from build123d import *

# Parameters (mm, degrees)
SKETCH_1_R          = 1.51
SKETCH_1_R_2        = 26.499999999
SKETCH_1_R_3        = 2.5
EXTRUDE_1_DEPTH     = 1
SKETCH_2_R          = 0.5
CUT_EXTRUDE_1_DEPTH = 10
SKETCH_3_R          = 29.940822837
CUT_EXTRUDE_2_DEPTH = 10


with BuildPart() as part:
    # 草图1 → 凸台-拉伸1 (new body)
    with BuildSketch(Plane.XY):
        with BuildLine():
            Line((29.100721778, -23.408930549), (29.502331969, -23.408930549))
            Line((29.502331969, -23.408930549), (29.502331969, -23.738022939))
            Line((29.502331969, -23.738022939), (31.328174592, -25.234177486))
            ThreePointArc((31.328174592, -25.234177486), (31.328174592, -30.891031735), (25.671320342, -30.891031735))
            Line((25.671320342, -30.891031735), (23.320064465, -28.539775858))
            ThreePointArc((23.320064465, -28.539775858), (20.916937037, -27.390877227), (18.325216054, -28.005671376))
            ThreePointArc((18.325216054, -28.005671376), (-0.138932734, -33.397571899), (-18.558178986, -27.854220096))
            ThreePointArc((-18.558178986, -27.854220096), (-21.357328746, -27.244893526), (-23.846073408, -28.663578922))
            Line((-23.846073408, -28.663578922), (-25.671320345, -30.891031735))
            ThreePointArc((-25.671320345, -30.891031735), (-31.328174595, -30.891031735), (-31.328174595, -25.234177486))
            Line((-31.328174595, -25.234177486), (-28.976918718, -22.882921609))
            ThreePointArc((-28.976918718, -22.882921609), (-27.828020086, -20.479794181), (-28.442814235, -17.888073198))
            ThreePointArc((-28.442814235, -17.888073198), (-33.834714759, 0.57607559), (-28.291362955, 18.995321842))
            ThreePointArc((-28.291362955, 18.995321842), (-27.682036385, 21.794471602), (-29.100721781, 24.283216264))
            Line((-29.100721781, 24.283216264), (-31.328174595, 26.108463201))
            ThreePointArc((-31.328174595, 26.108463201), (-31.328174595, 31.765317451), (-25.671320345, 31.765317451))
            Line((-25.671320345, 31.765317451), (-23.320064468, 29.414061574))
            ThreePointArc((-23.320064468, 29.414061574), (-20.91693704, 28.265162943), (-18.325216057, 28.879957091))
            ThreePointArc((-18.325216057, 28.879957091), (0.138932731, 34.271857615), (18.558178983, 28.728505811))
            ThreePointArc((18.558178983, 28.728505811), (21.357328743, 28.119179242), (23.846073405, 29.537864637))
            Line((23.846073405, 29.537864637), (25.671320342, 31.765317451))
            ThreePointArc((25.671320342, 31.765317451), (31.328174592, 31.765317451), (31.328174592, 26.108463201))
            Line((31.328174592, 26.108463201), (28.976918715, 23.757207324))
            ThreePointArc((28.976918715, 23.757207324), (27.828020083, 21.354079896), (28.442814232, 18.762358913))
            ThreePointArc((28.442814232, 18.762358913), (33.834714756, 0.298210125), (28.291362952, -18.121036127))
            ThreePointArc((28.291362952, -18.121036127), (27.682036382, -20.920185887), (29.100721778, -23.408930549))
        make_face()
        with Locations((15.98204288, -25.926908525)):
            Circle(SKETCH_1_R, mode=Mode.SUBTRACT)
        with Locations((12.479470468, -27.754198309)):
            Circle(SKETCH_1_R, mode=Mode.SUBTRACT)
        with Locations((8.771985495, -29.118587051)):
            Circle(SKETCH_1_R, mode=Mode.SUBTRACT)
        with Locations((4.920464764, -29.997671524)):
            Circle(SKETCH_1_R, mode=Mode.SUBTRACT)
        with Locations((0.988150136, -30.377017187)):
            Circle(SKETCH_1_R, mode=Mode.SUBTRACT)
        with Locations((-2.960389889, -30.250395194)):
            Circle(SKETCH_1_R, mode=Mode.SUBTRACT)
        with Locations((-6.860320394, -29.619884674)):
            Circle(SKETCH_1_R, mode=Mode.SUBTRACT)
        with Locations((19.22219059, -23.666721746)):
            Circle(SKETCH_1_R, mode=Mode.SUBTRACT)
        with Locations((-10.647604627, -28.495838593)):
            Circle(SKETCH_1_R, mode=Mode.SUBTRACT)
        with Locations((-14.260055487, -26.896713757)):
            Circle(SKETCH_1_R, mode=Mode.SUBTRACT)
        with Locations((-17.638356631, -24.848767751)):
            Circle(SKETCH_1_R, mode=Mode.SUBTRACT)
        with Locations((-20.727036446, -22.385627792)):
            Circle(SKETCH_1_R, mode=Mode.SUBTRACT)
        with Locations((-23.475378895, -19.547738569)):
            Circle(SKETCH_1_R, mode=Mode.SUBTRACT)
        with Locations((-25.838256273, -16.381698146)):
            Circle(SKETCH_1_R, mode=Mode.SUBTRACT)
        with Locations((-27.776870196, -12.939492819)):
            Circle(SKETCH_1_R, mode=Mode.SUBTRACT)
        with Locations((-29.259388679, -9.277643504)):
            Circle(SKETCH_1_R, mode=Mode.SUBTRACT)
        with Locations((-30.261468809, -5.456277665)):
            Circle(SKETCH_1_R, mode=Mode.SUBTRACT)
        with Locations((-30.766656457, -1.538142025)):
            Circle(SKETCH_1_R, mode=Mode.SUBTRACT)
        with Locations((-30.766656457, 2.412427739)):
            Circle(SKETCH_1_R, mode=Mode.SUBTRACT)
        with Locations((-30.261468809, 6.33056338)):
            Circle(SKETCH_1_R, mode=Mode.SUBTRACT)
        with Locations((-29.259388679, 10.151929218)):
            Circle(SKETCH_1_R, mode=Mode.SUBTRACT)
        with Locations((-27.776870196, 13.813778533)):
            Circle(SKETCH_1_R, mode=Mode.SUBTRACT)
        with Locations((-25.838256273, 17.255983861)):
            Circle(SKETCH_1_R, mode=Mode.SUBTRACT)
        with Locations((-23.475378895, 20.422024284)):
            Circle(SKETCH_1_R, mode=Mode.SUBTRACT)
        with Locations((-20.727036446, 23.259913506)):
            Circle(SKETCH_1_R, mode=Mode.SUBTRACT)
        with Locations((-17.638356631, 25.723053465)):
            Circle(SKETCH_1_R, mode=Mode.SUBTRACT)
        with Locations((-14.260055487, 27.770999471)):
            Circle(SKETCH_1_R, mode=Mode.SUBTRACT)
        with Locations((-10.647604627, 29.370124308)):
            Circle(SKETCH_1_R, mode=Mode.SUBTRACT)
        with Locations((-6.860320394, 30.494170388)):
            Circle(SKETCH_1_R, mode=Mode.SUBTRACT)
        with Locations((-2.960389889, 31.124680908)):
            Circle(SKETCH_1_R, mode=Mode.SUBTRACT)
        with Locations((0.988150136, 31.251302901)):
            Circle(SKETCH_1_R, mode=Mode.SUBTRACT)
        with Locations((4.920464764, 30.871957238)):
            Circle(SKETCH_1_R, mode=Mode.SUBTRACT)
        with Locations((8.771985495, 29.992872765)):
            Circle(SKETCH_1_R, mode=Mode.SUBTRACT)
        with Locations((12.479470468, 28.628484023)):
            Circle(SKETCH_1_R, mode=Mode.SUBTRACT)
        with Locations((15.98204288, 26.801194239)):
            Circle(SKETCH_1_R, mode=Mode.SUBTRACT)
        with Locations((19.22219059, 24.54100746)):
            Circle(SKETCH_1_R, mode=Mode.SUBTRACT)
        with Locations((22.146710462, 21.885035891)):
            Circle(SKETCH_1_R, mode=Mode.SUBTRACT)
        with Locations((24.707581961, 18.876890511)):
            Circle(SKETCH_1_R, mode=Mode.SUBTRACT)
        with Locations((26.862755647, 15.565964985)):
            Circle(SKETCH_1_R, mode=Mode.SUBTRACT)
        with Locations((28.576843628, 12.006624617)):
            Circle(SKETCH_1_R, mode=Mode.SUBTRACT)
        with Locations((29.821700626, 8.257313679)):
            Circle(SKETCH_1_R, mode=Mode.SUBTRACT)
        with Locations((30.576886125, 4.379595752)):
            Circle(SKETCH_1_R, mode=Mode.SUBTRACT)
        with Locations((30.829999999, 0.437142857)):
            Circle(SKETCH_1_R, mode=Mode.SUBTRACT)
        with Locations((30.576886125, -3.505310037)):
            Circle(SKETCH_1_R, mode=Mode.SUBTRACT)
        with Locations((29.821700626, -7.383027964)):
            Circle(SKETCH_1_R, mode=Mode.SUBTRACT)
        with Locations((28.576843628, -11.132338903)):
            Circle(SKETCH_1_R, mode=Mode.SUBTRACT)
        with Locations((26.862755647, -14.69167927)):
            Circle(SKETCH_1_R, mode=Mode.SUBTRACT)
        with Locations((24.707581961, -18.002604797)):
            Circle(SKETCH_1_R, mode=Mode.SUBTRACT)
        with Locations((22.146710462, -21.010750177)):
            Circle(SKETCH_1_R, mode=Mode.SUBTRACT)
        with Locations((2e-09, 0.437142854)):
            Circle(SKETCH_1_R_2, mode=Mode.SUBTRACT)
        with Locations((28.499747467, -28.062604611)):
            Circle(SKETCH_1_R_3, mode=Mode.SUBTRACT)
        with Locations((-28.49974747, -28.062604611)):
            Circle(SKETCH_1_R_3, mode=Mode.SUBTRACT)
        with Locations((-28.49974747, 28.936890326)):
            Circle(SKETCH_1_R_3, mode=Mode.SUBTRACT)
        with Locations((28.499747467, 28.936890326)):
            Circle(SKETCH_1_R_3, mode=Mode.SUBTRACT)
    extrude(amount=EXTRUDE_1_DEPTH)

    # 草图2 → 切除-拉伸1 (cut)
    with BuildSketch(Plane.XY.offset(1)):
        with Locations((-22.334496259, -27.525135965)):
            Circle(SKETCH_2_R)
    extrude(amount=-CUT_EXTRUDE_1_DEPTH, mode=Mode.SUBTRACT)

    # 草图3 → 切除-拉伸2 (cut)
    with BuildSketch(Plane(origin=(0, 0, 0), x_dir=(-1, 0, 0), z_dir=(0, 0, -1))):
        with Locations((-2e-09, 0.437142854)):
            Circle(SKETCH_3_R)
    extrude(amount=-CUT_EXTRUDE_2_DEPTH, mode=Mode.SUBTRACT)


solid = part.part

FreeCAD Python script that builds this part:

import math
import FreeCAD as App
import Part
import Sketcher
Q = App.Units.Quantity

doc = App.newDocument("Part")
body = doc.addObject("PartDesign::Body", "Body")

# Sketch on XY plane
sketch1 = body.newObject("Sketcher::SketchObject", "Sketch")
sketch1.AttachmentSupport = (doc.getObject("XY_Plane"), [""])
sketch1.MapMode = "FlatFace"
sketch1.addGeometry(Part.LineSegment(App.Vector(29.5, -23.41, 0), App.Vector(29.1, -23.41, 0)), False)
sketch1.addGeometry(Part.ArcOfCircle(Part.Circle(App.Vector(31.64, -20.31, 0), App.Vector(0, 0, 1), 4), math.radians(147), math.radians(231)), False)
sketch1.addGeometry(Part.ArcOfCircle(Part.Circle(App.Vector(0, 0.44, 0), App.Vector(0, 0, 1), 33.83), math.radians(-33), math.radians(33)), False)
sketch1.addGeometry(Part.ArcOfCircle(Part.Circle(App.Vector(31.81, 20.93, 0), App.Vector(0, 0, 1), 4), math.radians(135), math.radians(213)), False)
sketch1.addGeometry(Part.LineSegment(App.Vector(28.98, 23.76, 0), App.Vector(31.33, 26.11, 0)), False)
sketch1.addGeometry(Part.ArcOfCircle(Part.Circle(App.Vector(28.5, 28.94, 0), App.Vector(0, 0, 1), 4), math.radians(-45), math.radians(135)), False)
sketch1.addGeometry(Part.LineSegment(App.Vector(25.67, 31.77, 0), App.Vector(23.85, 29.54, 0)), False)
sketch1.addGeometry(Part.ArcOfCircle(Part.Circle(App.Vector(20.75, 32.07, 0), App.Vector(0, 0, 1), 4), math.radians(-123), math.radians(-39)), False)
sketch1.addGeometry(Part.ArcOfCircle(Part.Circle(App.Vector(0, 0.44, 0), App.Vector(0, 0, 1), 33.83), math.radians(57), math.radians(123)), False)
sketch1.addGeometry(Part.ArcOfCircle(Part.Circle(App.Vector(-20.49, 32.24, 0), App.Vector(0, 0, 1), 4), math.radians(-135), math.radians(-57)), False)
sketch1.addGeometry(Part.LineSegment(App.Vector(-23.32, 29.41, 0), App.Vector(-25.67, 31.77, 0)), False)
sketch1.addGeometry(Part.ArcOfCircle(Part.Circle(App.Vector(-28.5, 28.94, 0), App.Vector(0, 0, 1), 4), math.radians(45), math.radians(225)), False)
sketch1.addGeometry(Part.LineSegment(App.Vector(-31.33, 26.11, 0), App.Vector(-29.1, 24.28, 0)), False)
sketch1.addGeometry(Part.ArcOfCircle(Part.Circle(App.Vector(-31.64, 21.19, 0), App.Vector(0, 0, 1), 4), math.radians(-33), math.radians(51)), False)
sketch1.addGeometry(Part.ArcOfCircle(Part.Circle(App.Vector(0, 0.44, 0), App.Vector(0, 0, 1), 33.83), math.radians(147), math.radians(213)), False)
sketch1.addGeometry(Part.ArcOfCircle(Part.Circle(App.Vector(-31.81, -20.05, 0), App.Vector(0, 0, 1), 4), math.radians(-45), math.radians(33)), False)
sketch1.addGeometry(Part.LineSegment(App.Vector(-28.98, -22.88, 0), App.Vector(-31.33, -25.23, 0)), False)
sketch1.addGeometry(Part.ArcOfCircle(Part.Circle(App.Vector(-28.5, -28.06, 0), App.Vector(0, 0, 1), 4), math.radians(135), math.radians(315)), False)
sketch1.addGeometry(Part.LineSegment(App.Vector(-25.67, -30.89, 0), App.Vector(-23.85, -28.66, 0)), False)
sketch1.addGeometry(Part.ArcOfCircle(Part.Circle(App.Vector(-20.75, -31.2, 0), App.Vector(0, 0, 1), 4), math.radians(57), math.radians(141)), False)
sketch1.addGeometry(Part.ArcOfCircle(Part.Circle(App.Vector(0, 0.44, 0), App.Vector(0, 0, 1), 33.84), math.radians(-123), math.radians(-57)), False)
sketch1.addGeometry(Part.ArcOfCircle(Part.Circle(App.Vector(20.49, -31.37, 0), App.Vector(0, 0, 1), 4), math.radians(45), math.radians(123)), False)
sketch1.addGeometry(Part.LineSegment(App.Vector(23.32, -28.54, 0), App.Vector(25.67, -30.89, 0)), False)
sketch1.addGeometry(Part.ArcOfCircle(Part.Circle(App.Vector(28.5, -28.06, 0), App.Vector(0, 0, 1), 4), math.radians(-135), math.radians(45)), False)
sketch1.addGeometry(Part.LineSegment(App.Vector(31.33, -25.23, 0), App.Vector(29.5, -23.74, 0)), False)
sketch1.addGeometry(Part.LineSegment(App.Vector(29.5, -23.74, 0), App.Vector(29.5, -23.41, 0)), False)
sketch1.addGeometry(Part.Circle(App.Vector(28.5, -28.06, 0), App.Vector(0, 0, 1), 2.5), False)
sketch1.addGeometry(Part.Circle(App.Vector(24.71, -18, 0), App.Vector(0, 0, 1), 1.51), False)
sketch1.addGeometry(Part.Circle(App.Vector(22.15, -21.01, 0), App.Vector(0, 0, 1), 1.51), False)
sketch1.addGeometry(Part.Circle(App.Vector(19.22, -23.67, 0), App.Vector(0, 0, 1), 1.51), False)
sketch1.addGeometry(Part.Circle(App.Vector(8.77, -29.12, 0), App.Vector(0, 0, 1), 1.51), False)
sketch1.addGeometry(Part.Circle(App.Vector(15.98, -25.93, 0), App.Vector(0, 0, 1), 1.51), False)
sketch1.addGeometry(Part.Circle(App.Vector(12.48, -27.75, 0), App.Vector(0, 0, 1), 1.51), False)
sketch1.addGeometry(Part.Circle(App.Vector(4.92, -30, 0), App.Vector(0, 0, 1), 1.51), False)
sketch1.addGeometry(Part.Circle(App.Vector(0.99, -30.38, 0), App.Vector(0, 0, 1), 1.51), False)
sketch1.addGeometry(Part.Circle(App.Vector(26.86, -14.69, 0), App.Vector(0, 0, 1), 1.51), False)
sketch1.addGeometry(Part.Circle(App.Vector(28.58, -11.13, 0), App.Vector(0, 0, 1), 1.51), False)
sketch1.addGeometry(Part.Circle(App.Vector(29.82, -7.38, 0), App.Vector(0, 0, 1), 1.51), False)
sketch1.addGeometry(Part.Circle(App.Vector(30.58, -3.51, 0), App.Vector(0, 0, 1), 1.51), False)
sketch1.addGeometry(Part.Circle(App.Vector(-2.96, -30.25, 0), App.Vector(0, 0, 1), 1.51), False)
sketch1.addGeometry(Part.Circle(App.Vector(-6.86, -29.62, 0), App.Vector(0, 0, 1), 1.51), False)
sketch1.addGeometry(Part.Circle(App.Vector(-10.65, -28.5, 0), App.Vector(0, 0, 1), 1.51), False)
sketch1.addGeometry(Part.Circle(App.Vector(-14.26, -26.9, 0), App.Vector(0, 0, 1), 1.51), False)
sketch1.addGeometry(Part.Circle(App.Vector(-17.64, -24.85, 0), App.Vector(0, 0, 1), 1.51), False)
sketch1.addGeometry(Part.Circle(App.Vector(-28.5, -28.06, 0), App.Vector(0, 0, 1), 2.5), False)
sketch1.addGeometry(Part.Circle(App.Vector(-20.73, -22.39, 0), App.Vector(0, 0, 1), 1.51), False)
sketch1.addGeometry(Part.Circle(App.Vector(-23.48, -19.55, 0), App.Vector(0, 0, 1), 1.51), False)
sketch1.addGeometry(Part.Circle(App.Vector(-25.84, -16.38, 0), App.Vector(0, 0, 1), 1.51), False)
sketch1.addGeometry(Part.Circle(App.Vector(0, 0.44, 0), App.Vector(0, 0, 1), 26.5), False)
sketch1.addGeometry(Part.Circle(App.Vector(-27.78, -12.94, 0), App.Vector(0, 0, 1), 1.51), False)
sketch1.addGeometry(Part.Circle(App.Vector(-29.26, -9.28, 0), App.Vector(0, 0, 1), 1.51), False)
sketch1.addGeometry(Part.Circle(App.Vector(-30.26, -5.46, 0), App.Vector(0, 0, 1), 1.51), False)
sketch1.addGeometry(Part.Circle(App.Vector(-30.77, -1.54, 0), App.Vector(0, 0, 1), 1.51), False)
sketch1.addGeometry(Part.Circle(App.Vector(30.83, 0.44, 0), App.Vector(0, 0, 1), 1.51), False)
sketch1.addGeometry(Part.Circle(App.Vector(30.58, 4.38, 0), App.Vector(0, 0, 1), 1.51), False)
sketch1.addGeometry(Part.Circle(App.Vector(29.82, 8.26, 0), App.Vector(0, 0, 1), 1.51), False)
sketch1.addGeometry(Part.Circle(App.Vector(28.58, 12.01, 0), App.Vector(0, 0, 1), 1.51), False)
sketch1.addGeometry(Part.Circle(App.Vector(26.86, 15.57, 0), App.Vector(0, 0, 1), 1.51), False)
sketch1.addGeometry(Part.Circle(App.Vector(24.71, 18.88, 0), App.Vector(0, 0, 1), 1.51), False)
sketch1.addGeometry(Part.Circle(App.Vector(22.15, 21.89, 0), App.Vector(0, 0, 1), 1.51), False)
sketch1.addGeometry(Part.Circle(App.Vector(19.22, 24.54, 0), App.Vector(0, 0, 1), 1.51), False)
sketch1.addGeometry(Part.Circle(App.Vector(28.5, 28.94, 0), App.Vector(0, 0, 1), 2.5), False)
sketch1.addGeometry(Part.Circle(App.Vector(15.98, 26.8, 0), App.Vector(0, 0, 1), 1.51), False)
sketch1.addGeometry(Part.Circle(App.Vector(12.48, 28.63, 0), App.Vector(0, 0, 1), 1.51), False)
sketch1.addGeometry(Part.Circle(App.Vector(8.77, 29.99, 0), App.Vector(0, 0, 1), 1.51), False)
sketch1.addGeometry(Part.Circle(App.Vector(4.92, 30.87, 0), App.Vector(0, 0, 1), 1.51), False)
sketch1.addGeometry(Part.Circle(App.Vector(0.99, 31.25, 0), App.Vector(0, 0, 1), 1.51), False)
sketch1.addGeometry(Part.Circle(App.Vector(-30.77, 2.41, 0), App.Vector(0, 0, 1), 1.51), False)
sketch1.addGeometry(Part.Circle(App.Vector(-30.26, 6.33, 0), App.Vector(0, 0, 1), 1.51), False)
sketch1.addGeometry(Part.Circle(App.Vector(-29.26, 10.15, 0), App.Vector(0, 0, 1), 1.51), False)
sketch1.addGeometry(Part.Circle(App.Vector(-27.78, 13.81, 0), App.Vector(0, 0, 1), 1.51), False)
sketch1.addGeometry(Part.Circle(App.Vector(-2.96, 31.12, 0), App.Vector(0, 0, 1), 1.51), False)
sketch1.addGeometry(Part.Circle(App.Vector(-6.86, 30.49, 0), App.Vector(0, 0, 1), 1.51), False)
sketch1.addGeometry(Part.Circle(App.Vector(-14.26, 27.77, 0), App.Vector(0, 0, 1), 1.51), False)
sketch1.addGeometry(Part.Circle(App.Vector(-10.65, 29.37, 0), App.Vector(0, 0, 1), 1.51), False)
sketch1.addGeometry(Part.Circle(App.Vector(-23.48, 20.42, 0), App.Vector(0, 0, 1), 1.51), False)
sketch1.addGeometry(Part.Circle(App.Vector(-20.73, 23.26, 0), App.Vector(0, 0, 1), 1.51), False)
sketch1.addGeometry(Part.Circle(App.Vector(-25.84, 17.26, 0), App.Vector(0, 0, 1), 1.51), False)
sketch1.addGeometry(Part.Circle(App.Vector(-17.64, 25.72, 0), App.Vector(0, 0, 1), 1.51), False)
sketch1.addGeometry(Part.Circle(App.Vector(-28.5, 28.94, 0), App.Vector(0, 0, 1), 2.5), False)
sketch1.addConstraint(Sketcher.Constraint("Coincident", 0, 2, 1, 2))
sketch1.addConstraint(Sketcher.Constraint("Tangent", 1, 1, 2, 1))
sketch1.addConstraint(Sketcher.Constraint("Tangent", 2, 2, 3, 2))
sketch1.addConstraint(Sketcher.Constraint("Tangent", 3, 1, 4, 1))
sketch1.addConstraint(Sketcher.Constraint("Tangent", 4, 2, 5, 1))
sketch1.addConstraint(Sketcher.Constraint("Coincident", 5, 2, 6, 1))
sketch1.addConstraint(Sketcher.Constraint("Tangent", 6, 2, 7, 2))
sketch1.addConstraint(Sketcher.Constraint("Tangent", 7, 1, 8, 1))
sketch1.addConstraint(Sketcher.Constraint("Tangent", 8, 2, 9, 2))
sketch1.addConstraint(Sketcher.Constraint("Tangent", 9, 1, 10, 1))
sketch1.addConstraint(Sketcher.Constraint("Tangent", 10, 2, 11, 1))
sketch1.addConstraint(Sketcher.Constraint("Coincident", 11, 2, 12, 1))
sketch1.addConstraint(Sketcher.Constraint("Tangent", 12, 2, 13, 2))
sketch1.addConstraint(Sketcher.Constraint("Tangent", 13, 1, 14, 1))
sketch1.addConstraint(Sketcher.Constraint("Tangent", 14, 2, 15, 2))
sketch1.addConstraint(Sketcher.Constraint("Tangent", 15, 1, 16, 1))
sketch1.addConstraint(Sketcher.Constraint("Tangent", 16, 2, 17, 1))
sketch1.addConstraint(Sketcher.Constraint("Coincident", 17, 2, 18, 1))
sketch1.addConstraint(Sketcher.Constraint("Tangent", 18, 2, 19, 2))
sketch1.addConstraint(Sketcher.Constraint("Tangent", 19, 1, 20, 1))
sketch1.addConstraint(Sketcher.Constraint("Tangent", 20, 2, 21, 2))
sketch1.addConstraint(Sketcher.Constraint("Tangent", 21, 1, 22, 1))
sketch1.addConstraint(Sketcher.Constraint("Tangent", 22, 2, 23, 1))
sketch1.addConstraint(Sketcher.Constraint("Coincident", 23, 2, 24, 1))
sketch1.addConstraint(Sketcher.Constraint("Coincident", 24, 2, 25, 1))
sketch1.addConstraint(Sketcher.Constraint("Coincident", 25, 2, 0, 1))
sketch1.addConstraint(Sketcher.Constraint("Horizontal", 0))
sketch1.addConstraint(Sketcher.Constraint("Vertical", 25))
sketch1.addConstraint(Sketcher.Constraint("Coincident", 8, 3, 2, 3))
sketch1.addConstraint(Sketcher.Constraint("Coincident", 14, 3, 2, 3))
sketch1.addConstraint(Sketcher.Constraint("Coincident", 20, 3, 2, 3))
sketch1.addConstraint(Sketcher.Constraint("Coincident", 26, 3, 23, 3))
sketch1.addConstraint(Sketcher.Constraint("Coincident", 44, 3, 17, 3))
sketch1.addConstraint(Sketcher.Constraint("Coincident", 48, 3, 2, 3))
sketch1.addConstraint(Sketcher.Constraint("Coincident", 61, 3, 5, 3))
sketch1.addConstraint(Sketcher.Constraint("Coincident", 79, 3, 11, 3))
sketch1.addConstraint(Sketcher.Constraint("Equal", 1, 3))
sketch1.addConstraint(Sketcher.Constraint("Equal", 3, 5))
sketch1.addConstraint(Sketcher.Constraint("Equal", 5, 7))
sketch1.addConstraint(Sketcher.Constraint("Equal", 2, 8))
sketch1.addConstraint(Sketcher.Constraint("Equal", 7, 9))
sketch1.addConstraint(Sketcher.Constraint("Equal", 9, 11))
sketch1.addConstraint(Sketcher.Constraint("Equal", 11, 13))
sketch1.addConstraint(Sketcher.Constraint("Equal", 8, 14))
sketch1.addConstraint(Sketcher.Constraint("Equal", 13, 15))
sketch1.addConstraint(Sketcher.Constraint("Equal", 15, 17))
sketch1.addConstraint(Sketcher.Constraint("Equal", 17, 19))
sketch1.addConstraint(Sketcher.Constraint("Equal", 14, 20))
sketch1.addConstraint(Sketcher.Constraint("Equal", 19, 21))
sketch1.addConstraint(Sketcher.Constraint("Equal", 21, 23))
sketch1.addConstraint(Sketcher.Constraint("Equal", 27, 28))
sketch1.addConstraint(Sketcher.Constraint("Equal", 28, 29))
sketch1.addConstraint(Sketcher.Constraint("Equal", 29, 30))
sketch1.addConstraint(Sketcher.Constraint("Equal", 30, 31))
sketch1.addConstraint(Sketcher.Constraint("Equal", 31, 32))
sketch1.addConstraint(Sketcher.Constraint("Equal", 32, 33))
sketch1.addConstraint(Sketcher.Constraint("Equal", 33, 34))
sketch1.addConstraint(Sketcher.Constraint("Equal", 34, 35))
sketch1.addConstraint(Sketcher.Constraint("Equal", 35, 36))
sketch1.addConstraint(Sketcher.Constraint("Equal", 36, 37))
sketch1.addConstraint(Sketcher.Constraint("Equal", 37, 38))
sketch1.addConstraint(Sketcher.Constraint("Equal", 38, 39))
sketch1.addConstraint(Sketcher.Constraint("Equal", 39, 40))
sketch1.addConstraint(Sketcher.Constraint("Equal", 40, 41))
sketch1.addConstraint(Sketcher.Constraint("Equal", 41, 42))
sketch1.addConstraint(Sketcher.Constraint("Equal", 42, 43))
sketch1.addConstraint(Sketcher.Constraint("Equal", 26, 44))
sketch1.addConstraint(Sketcher.Constraint("Equal", 43, 45))
sketch1.addConstraint(Sketcher.Constraint("Equal", 45, 46))
sketch1.addConstraint(Sketcher.Constraint("Equal", 46, 47))
sketch1.addConstraint(Sketcher.Constraint("Equal", 47, 49))
sketch1.addConstraint(Sketcher.Constraint("Equal", 49, 50))
sketch1.addConstraint(Sketcher.Constraint("Equal", 50, 51))
sketch1.addConstraint(Sketcher.Constraint("Equal", 51, 52))
sketch1.addConstraint(Sketcher.Constraint("Equal", 52, 53))
sketch1.addConstraint(Sketcher.Constraint("Equal", 53, 54))
sketch1.addConstraint(Sketcher.Constraint("Equal", 54, 55))
sketch1.addConstraint(Sketcher.Constraint("Equal", 55, 56))
sketch1.addConstraint(Sketcher.Constraint("Equal", 56, 57))
sketch1.addConstraint(Sketcher.Constraint("Equal", 57, 58))
sketch1.addConstraint(Sketcher.Constraint("Equal", 58, 59))
sketch1.addConstraint(Sketcher.Constraint("Equal", 59, 60))
sketch1.addConstraint(Sketcher.Constraint("Equal", 44, 61))
sketch1.addConstraint(Sketcher.Constraint("Equal", 60, 62))
sketch1.addConstraint(Sketcher.Constraint("Equal", 62, 63))
sketch1.addConstraint(Sketcher.Constraint("Equal", 63, 64))
sketch1.addConstraint(Sketcher.Constraint("Equal", 64, 65))
sketch1.addConstraint(Sketcher.Constraint("Equal", 65, 66))
sketch1.addConstraint(Sketcher.Constraint("Equal", 66, 67))
sketch1.addConstraint(Sketcher.Constraint("Equal", 67, 68))
sketch1.addConstraint(Sketcher.Constraint("Equal", 68, 69))
sketch1.addConstraint(Sketcher.Constraint("Equal", 69, 70))
sketch1.addConstraint(Sketcher.Constraint("Equal", 70, 71))
sketch1.addConstraint(Sketcher.Constraint("Equal", 71, 72))
sketch1.addConstraint(Sketcher.Constraint("Equal", 72, 73))
sketch1.addConstraint(Sketcher.Constraint("Equal", 73, 74))
sketch1.addConstraint(Sketcher.Constraint("Equal", 74, 75))
sketch1.addConstraint(Sketcher.Constraint("Equal", 75, 76))
sketch1.addConstraint(Sketcher.Constraint("Equal", 76, 77))
sketch1.addConstraint(Sketcher.Constraint("Equal", 77, 78))
sketch1.addConstraint(Sketcher.Constraint("Equal", 61, 79))
sketch1.addConstraint(Sketcher.Constraint("Symmetric", 5, 3, 11, 3, -2))
sketch1.addConstraint(Sketcher.Constraint("Symmetric", 17, 3, 23, 3, -2))
sketch1.addConstraint(Sketcher.Constraint("PointOnObject", 2, 3, -2))
sketch1.addConstraint(Sketcher.Constraint("Perpendicular", 4, 10))
sketch1.addConstraint(Sketcher.Constraint("Perpendicular", 6, 12))
sketch1.addConstraint(Sketcher.Constraint("Perpendicular", 10, 16))
sketch1.addConstraint(Sketcher.Constraint("Perpendicular", 12, 18))
sketch1.addConstraint(Sketcher.Constraint("Perpendicular", 16, 22))
sketch1.addConstraint(Sketcher.Constraint("Perpendicular", 18, 24))
sketch1.addConstraint(Sketcher.Constraint("Horizontal", 48, 3, 53, 3))
sketch1.addConstraint(Sketcher.Constraint("Horizontal", 5, 2, 10, 2))
sketch1.addConstraint(Sketcher.Constraint("Horizontal", 4, 2, 11, 2))
sketch1.addConstraint(Sketcher.Constraint("Horizontal", 17, 2, 22, 2))
sketch1.addConstraint(Sketcher.Constraint("Horizontal", 16, 2, 23, 2))
sketch1.addConstraint(Sketcher.Constraint("Vertical", 11, 3, 17, 3))
sketch1.addConstraint(Sketcher.Constraint("Vertical", 38, 3, 54, 3))
sketch1.addConstraint(Sketcher.Constraint("Vertical", 37, 3, 55, 3))
sketch1.addConstraint(Sketcher.Constraint("Vertical", 36, 3, 56, 3))
sketch1.addConstraint(Sketcher.Constraint("Vertical", 35, 3, 57, 3))
sketch1.addConstraint(Sketcher.Constraint("Vertical", 27, 3, 58, 3))
sketch1.addConstraint(Sketcher.Constraint("Vertical", 28, 3, 59, 3))
sketch1.addConstraint(Sketcher.Constraint("Vertical", 29, 3, 60, 3))
sketch1.addConstraint(Sketcher.Constraint("Vertical", 31, 3, 62, 3))
sketch1.addConstraint(Sketcher.Constraint("Vertical", 32, 3, 63, 3))
sketch1.addConstraint(Sketcher.Constraint("Vertical", 30, 3, 64, 3))
sketch1.addConstraint(Sketcher.Constraint("Vertical", 33, 3, 65, 3))
sketch1.addConstraint(Sketcher.Constraint("Vertical", 34, 3, 66, 3))
sketch1.addConstraint(Sketcher.Constraint("Vertical", 52, 3, 67, 3))
sketch1.addConstraint(Sketcher.Constraint("Vertical", 51, 3, 68, 3))
sketch1.addConstraint(Sketcher.Constraint("Vertical", 50, 3, 69, 3))
sketch1.addConstraint(Sketcher.Constraint("Vertical", 49, 3, 70, 3))
sketch1.addConstraint(Sketcher.Constraint("Vertical", 39, 3, 71, 3))
sketch1.addConstraint(Sketcher.Constraint("Vertical", 40, 3, 72, 3))
sketch1.addConstraint(Sketcher.Constraint("Vertical", 42, 3, 73, 3))
sketch1.addConstraint(Sketcher.Constraint("Vertical", 41, 3, 74, 3))
sketch1.addConstraint(Sketcher.Constraint("Vertical", 46, 3, 75, 3))
sketch1.addConstraint(Sketcher.Constraint("Vertical", 45, 3, 76, 3))
sketch1.addConstraint(Sketcher.Constraint("Vertical", 47, 3, 77, 3))
sketch1.addConstraint(Sketcher.Constraint("Vertical", 43, 3, 78, 3))
sketch1.addConstraint(Sketcher.Constraint("Equal", 4, 10))
sketch1.addConstraint(Sketcher.Constraint("Equal", 10, 16))
sketch1.addConstraint(Sketcher.Constraint("Diameter", 26, Q("5 mm")))
sketch1.addConstraint(Sketcher.Constraint("Diameter", 48, Q("53 mm")))
sketch1.addConstraint(Sketcher.Constraint("Radius", 1, Q("4 mm")))
sketch1.addConstraint(Sketcher.Constraint("Diameter", 27, Q("3.02 mm")))
sketch1.addConstraint(Sketcher.Constraint("Angle", 4, Q("45 deg")))
sketch1.addConstraint(Sketcher.Constraint("Radius", 2, Q("33.835 mm")))
sketch1.addConstraint(Sketcher.Constraint("DistanceX", -1, 1, 53, 3, Q("30.83 mm")))
sketch1.addConstraint(Sketcher.Constraint("DistanceY", 1, 3, -1, 1, Q("20.314998 mm")))
sketch1.addConstraint(Sketcher.Constraint("DistanceY", -1, 1, 73, 3, Q("27.770999 mm")))
sketch1.addConstraint(Sketcher.Constraint("DistanceX", 0, 2, 0, 1, Q("0.40161 mm")))
sketch1.addConstraint(Sketcher.Constraint("DistanceY", 32, 3, -1, 1, Q("27.754198 mm")))
sketch1.addConstraint(Sketcher.Constraint("DistanceX", -1, 1, 37, 3, Q("29.821701 mm")))
sketch1.addConstraint(Sketcher.Constraint("DistanceY", 47, 3, -1, 1, Q("16.381698 mm")))
sketch1.addConstraint(Sketcher.Constraint("Distance", 6, Q("2.87977 mm")))
sketch1.addConstraint(Sketcher.Constraint("DistanceY", 25, 1, 25, 2, Q("0.329092 mm")))
sketch1.addConstraint(Sketcher.Constraint("DistanceX", -1, 1, 1, 3, Q("31.63599 mm")))
sketch1.addConstraint(Sketcher.Constraint("DistanceX", -1, 1, 27, 3, Q("24.707582 mm")))
sketch1.addConstraint(Sketcher.Constraint("DistanceX", -1, 1, 28, 3, Q("22.14671 mm")))
sketch1.addConstraint(Sketcher.Constraint("DistanceY", 28, 3, -1, 1, Q("21.01075 mm")))
sketch1.addConstraint(Sketcher.Constraint("DistanceX", -1, 1, 29, 3, Q("19.222191 mm")))
sketch1.addConstraint(Sketcher.Constraint("DistanceY", 29, 3, -1, 1, Q("23.666722 mm")))
sketch1.addConstraint(Sketcher.Constraint("DistanceY", 31, 3, -1, 1, Q("25.926909 mm")))
sketch1.addConstraint(Sketcher.Constraint("DistanceX", -1, 1, 32, 3, Q("12.47947 mm")))
sketch1.addConstraint(Sketcher.Constraint("DistanceY", 33, 3, -1, 1, Q("29.997672 mm")))
sketch1.addConstraint(Sketcher.Constraint("DistanceX", -1, 1, 34, 3, Q("0.98815 mm")))
sketch1.addConstraint(Sketcher.Constraint("DistanceY", 35, 3, -1, 1, Q("14.691679 mm")))
sketch1.addConstraint(Sketcher.Constraint("DistanceY", 36, 3, -1, 1, Q("11.132339 mm")))
sketch1.addConstraint(Sketcher.Constraint("DistanceY", 38, 3, -1, 1, Q("3.50531 mm")))
sketch1.addConstraint(Sketcher.Constraint("DistanceX", 39, 3, -1, 1, Q("2.96039 mm")))
sketch1.addConstraint(Sketcher.Constraint("DistanceX", 40, 3, -1, 1, Q("6.86032 mm")))
sketch1.addConstraint(Sketcher.Constraint("DistanceY", 41, 3, -1, 1, Q("28.495839 mm")))
sketch1.addConstraint(Sketcher.Constraint("DistanceX", 46, 3, -1, 1, Q("23.475379 mm")))
sketch1.addConstraint(Sketcher.Constraint("DistanceY", 46, 3, -1, 1, Q("19.547739 mm")))
sketch1.addConstraint(Sketcher.Constraint("DistanceX", 49, 3, -1, 1, Q("27.77687 mm")))
sketch1.addConstraint(Sketcher.Constraint("DistanceX", 50, 3, -1, 1, Q("29.259389 mm")))
sketch1.addConstraint(Sketcher.Constraint("DistanceX", 51, 3, -1, 1, Q("30.261469 mm")))
sketch1.addConstraint(Sketcher.Constraint("DistanceY", -1, 1, 58, 3, Q("18.876891 mm")))
sketch1.addConstraint(Sketcher.Constraint("DistanceY", -1, 1, 69, 3, Q("10.151929 mm")))
sketch1.addConstraint(Sketcher.Constraint("DistanceY", -1, 1, 70, 3, Q("13.813779 mm")))
sketch1.addConstraint(Sketcher.Constraint("DistanceY", -1, 1, 71, 3, Q("31.124681 mm")))
sketch1.addConstraint(Sketcher.Constraint("DistanceY", -1, 1, 72, 3, Q("30.49417 mm")))
sketch1.addConstraint(Sketcher.Constraint("DistanceX", -1, 1, 0, 2, Q("29.100722 mm")))
sketch1.addConstraint(Sketcher.Constraint("DistanceY", 27, 3, -1, 1, Q("18.002605 mm")))
sketch1.addConstraint(Sketcher.Constraint("DistanceX", -1, 1, 30, 3, Q("8.771985 mm")))
sketch1.addConstraint(Sketcher.Constraint("DistanceY", 30, 3, -1, 1, Q("29.118587 mm")))
sketch1.addConstraint(Sketcher.Constraint("DistanceX", -1, 1, 31, 3, Q("15.982043 mm")))
sketch1.addConstraint(Sketcher.Constraint("DistanceX", -1, 1, 33, 3, Q("4.920465 mm")))
sketch1.addConstraint(Sketcher.Constraint("DistanceY", 34, 3, -1, 1, Q("30.377017 mm")))
sketch1.addConstraint(Sketcher.Constraint("DistanceX", -1, 1, 35, 3, Q("26.862756 mm")))
sketch1.addConstraint(Sketcher.Constraint("DistanceX", -1, 1, 36, 3, Q("28.576844 mm")))
sketch1.addConstraint(Sketcher.Constraint("DistanceY", 37, 3, -1, 1, Q("7.383028 mm")))
sketch1.addConstraint(Sketcher.Constraint("DistanceX", -1, 1, 38, 3, Q("30.576886 mm")))
sketch1.addConstraint(Sketcher.Constraint("DistanceY", 39, 3, -1, 1, Q("30.250395 mm")))
sketch1.addConstraint(Sketcher.Constraint("DistanceY", 40, 3, -1, 1, Q("29.619885 mm")))
sketch1.addConstraint(Sketcher.Constraint("DistanceX", 41, 3, -1, 1, Q("10.647605 mm")))
sketch1.addConstraint(Sketcher.Constraint("DistanceX", 42, 3, -1, 1, Q("14.260055 mm")))
sketch1.addConstraint(Sketcher.Constraint("DistanceY", 42, 3, -1, 1, Q("26.896714 mm")))
sketch1.addConstraint(Sketcher.Constraint("DistanceX", 43, 3, -1, 1, Q("17.638357 mm")))
sketch1.addConstraint(Sketcher.Constraint("DistanceY", 43, 3, -1, 1, Q("24.848768 mm")))
sketch1.addConstraint(Sketcher.Constraint("DistanceX", 45, 3, -1, 1, Q("20.727036 mm")))
sketch1.addConstraint(Sketcher.Constraint("DistanceY", 45, 3, -1, 1, Q("22.385628 mm")))
sketch1.addConstraint(Sketcher.Constraint("DistanceX", 47, 3, -1, 1, Q("25.838256 mm")))
sketch1.addConstraint(Sketcher.Constraint("DistanceY", 49, 3, -1, 1, Q("12.939493 mm")))
sketch1.addConstraint(Sketcher.Constraint("DistanceY", 50, 3, -1, 1, Q("9.277644 mm")))
sketch1.addConstraint(Sketcher.Constraint("DistanceY", 51, 3, -1, 1, Q("5.456278 mm")))
sketch1.addConstraint(Sketcher.Constraint("DistanceX", 52, 3, -1, 1, Q("30.766656 mm")))
sketch1.addConstraint(Sketcher.Constraint("DistanceY", 52, 3, -1, 1, Q("1.538142 mm")))
sketch1.addConstraint(Sketcher.Constraint("DistanceY", -1, 1, 54, 3, Q("4.379596 mm")))
sketch1.addConstraint(Sketcher.Constraint("DistanceY", -1, 1, 55, 3, Q("8.257314 mm")))
sketch1.addConstraint(Sketcher.Constraint("DistanceY", -1, 1, 56, 3, Q("12.006625 mm")))
sketch1.addConstraint(Sketcher.Constraint("DistanceY", -1, 1, 57, 3, Q("15.565965 mm")))
sketch1.addConstraint(Sketcher.Constraint("DistanceY", -1, 1, 59, 3, Q("21.885036 mm")))
sketch1.addConstraint(Sketcher.Constraint("DistanceY", -1, 1, 60, 3, Q("24.541007 mm")))
sketch1.addConstraint(Sketcher.Constraint("DistanceY", -1, 1, 62, 3, Q("26.801194 mm")))
sketch1.addConstraint(Sketcher.Constraint("DistanceY", -1, 1, 63, 3, Q("28.628484 mm")))
sketch1.addConstraint(Sketcher.Constraint("DistanceY", -1, 1, 64, 3, Q("29.992873 mm")))
sketch1.addConstraint(Sketcher.Constraint("DistanceY", -1, 1, 65, 3, Q("30.871957 mm")))
sketch1.addConstraint(Sketcher.Constraint("DistanceY", -1, 1, 66, 3, Q("31.251303 mm")))
sketch1.addConstraint(Sketcher.Constraint("DistanceY", -1, 1, 67, 3, Q("2.412428 mm")))
sketch1.addConstraint(Sketcher.Constraint("DistanceY", -1, 1, 68, 3, Q("6.330563 mm")))
sketch1.addConstraint(Sketcher.Constraint("DistanceY", -1, 1, 74, 3, Q("29.370124 mm")))
sketch1.addConstraint(Sketcher.Constraint("DistanceY", -1, 1, 75, 3, Q("20.422024 mm")))
sketch1.addConstraint(Sketcher.Constraint("DistanceY", -1, 1, 76, 3, Q("23.259914 mm")))
sketch1.addConstraint(Sketcher.Constraint("DistanceY", -1, 1, 77, 3, Q("17.255984 mm")))
sketch1.addConstraint(Sketcher.Constraint("DistanceY", -1, 1, 78, 3, Q("25.723053 mm")))
pad1 = body.newObject("PartDesign::Pad", "Pad")
pad1.Profile = sketch1
pad1.Length = 1

# Sketch on XY plane
sketch2 = body.newObject("Sketcher::SketchObject", "Sketch001")
sketch2.AttachmentSupport = (doc.getObject("XY_Plane"), [""])
sketch2.MapMode = "FlatFace"
sketch2.AttachmentOffset = App.Placement(App.Vector(0, 0, 1), App.Rotation())
sketch2.addGeometry(Part.Circle(App.Vector(-22.3, -27.5, 0), App.Vector(0, 0, 1), 0.5), False)
sketch2.addConstraint(Sketcher.Constraint("Diameter", 0, Q("1 mm")))
sketch2.addConstraint(Sketcher.Constraint("DistanceX", 0, 3, -1, 1, Q("22.334496 mm")))
sketch2.addConstraint(Sketcher.Constraint("DistanceY", 0, 3, -1, 1, Q("27.525136 mm")))
pocket1 = body.newObject("PartDesign::Pocket", "Pocket")
pocket1.Profile = sketch2
pocket1.Length = 10

# Sketch on XY plane
sketch3 = body.newObject("Sketcher::SketchObject", "Sketch002")
sketch3.AttachmentSupport = (doc.getObject("XY_Plane"), [""])
sketch3.MapMode = "FlatFace"
sketch3.addGeometry(Part.Circle(App.Vector(0, 0, 0), App.Vector(0, 0, 1), 30), False)
sketch3.addConstraint(Sketcher.Constraint("PointOnObject", 0, 3, -2))
sketch3.addConstraint(Sketcher.Constraint("Diameter", 0, Q("59.881646 mm")))
sketch3.addConstraint(Sketcher.Constraint("DistanceY", -1, 1, 0, 3, Q("0.437143 mm")))
pocket2 = body.newObject("PartDesign::Pocket", "Pocket001")
pocket2.Profile = sketch3
pocket2.Length = 10
pocket2.Reversed = True

doc.recompute()
